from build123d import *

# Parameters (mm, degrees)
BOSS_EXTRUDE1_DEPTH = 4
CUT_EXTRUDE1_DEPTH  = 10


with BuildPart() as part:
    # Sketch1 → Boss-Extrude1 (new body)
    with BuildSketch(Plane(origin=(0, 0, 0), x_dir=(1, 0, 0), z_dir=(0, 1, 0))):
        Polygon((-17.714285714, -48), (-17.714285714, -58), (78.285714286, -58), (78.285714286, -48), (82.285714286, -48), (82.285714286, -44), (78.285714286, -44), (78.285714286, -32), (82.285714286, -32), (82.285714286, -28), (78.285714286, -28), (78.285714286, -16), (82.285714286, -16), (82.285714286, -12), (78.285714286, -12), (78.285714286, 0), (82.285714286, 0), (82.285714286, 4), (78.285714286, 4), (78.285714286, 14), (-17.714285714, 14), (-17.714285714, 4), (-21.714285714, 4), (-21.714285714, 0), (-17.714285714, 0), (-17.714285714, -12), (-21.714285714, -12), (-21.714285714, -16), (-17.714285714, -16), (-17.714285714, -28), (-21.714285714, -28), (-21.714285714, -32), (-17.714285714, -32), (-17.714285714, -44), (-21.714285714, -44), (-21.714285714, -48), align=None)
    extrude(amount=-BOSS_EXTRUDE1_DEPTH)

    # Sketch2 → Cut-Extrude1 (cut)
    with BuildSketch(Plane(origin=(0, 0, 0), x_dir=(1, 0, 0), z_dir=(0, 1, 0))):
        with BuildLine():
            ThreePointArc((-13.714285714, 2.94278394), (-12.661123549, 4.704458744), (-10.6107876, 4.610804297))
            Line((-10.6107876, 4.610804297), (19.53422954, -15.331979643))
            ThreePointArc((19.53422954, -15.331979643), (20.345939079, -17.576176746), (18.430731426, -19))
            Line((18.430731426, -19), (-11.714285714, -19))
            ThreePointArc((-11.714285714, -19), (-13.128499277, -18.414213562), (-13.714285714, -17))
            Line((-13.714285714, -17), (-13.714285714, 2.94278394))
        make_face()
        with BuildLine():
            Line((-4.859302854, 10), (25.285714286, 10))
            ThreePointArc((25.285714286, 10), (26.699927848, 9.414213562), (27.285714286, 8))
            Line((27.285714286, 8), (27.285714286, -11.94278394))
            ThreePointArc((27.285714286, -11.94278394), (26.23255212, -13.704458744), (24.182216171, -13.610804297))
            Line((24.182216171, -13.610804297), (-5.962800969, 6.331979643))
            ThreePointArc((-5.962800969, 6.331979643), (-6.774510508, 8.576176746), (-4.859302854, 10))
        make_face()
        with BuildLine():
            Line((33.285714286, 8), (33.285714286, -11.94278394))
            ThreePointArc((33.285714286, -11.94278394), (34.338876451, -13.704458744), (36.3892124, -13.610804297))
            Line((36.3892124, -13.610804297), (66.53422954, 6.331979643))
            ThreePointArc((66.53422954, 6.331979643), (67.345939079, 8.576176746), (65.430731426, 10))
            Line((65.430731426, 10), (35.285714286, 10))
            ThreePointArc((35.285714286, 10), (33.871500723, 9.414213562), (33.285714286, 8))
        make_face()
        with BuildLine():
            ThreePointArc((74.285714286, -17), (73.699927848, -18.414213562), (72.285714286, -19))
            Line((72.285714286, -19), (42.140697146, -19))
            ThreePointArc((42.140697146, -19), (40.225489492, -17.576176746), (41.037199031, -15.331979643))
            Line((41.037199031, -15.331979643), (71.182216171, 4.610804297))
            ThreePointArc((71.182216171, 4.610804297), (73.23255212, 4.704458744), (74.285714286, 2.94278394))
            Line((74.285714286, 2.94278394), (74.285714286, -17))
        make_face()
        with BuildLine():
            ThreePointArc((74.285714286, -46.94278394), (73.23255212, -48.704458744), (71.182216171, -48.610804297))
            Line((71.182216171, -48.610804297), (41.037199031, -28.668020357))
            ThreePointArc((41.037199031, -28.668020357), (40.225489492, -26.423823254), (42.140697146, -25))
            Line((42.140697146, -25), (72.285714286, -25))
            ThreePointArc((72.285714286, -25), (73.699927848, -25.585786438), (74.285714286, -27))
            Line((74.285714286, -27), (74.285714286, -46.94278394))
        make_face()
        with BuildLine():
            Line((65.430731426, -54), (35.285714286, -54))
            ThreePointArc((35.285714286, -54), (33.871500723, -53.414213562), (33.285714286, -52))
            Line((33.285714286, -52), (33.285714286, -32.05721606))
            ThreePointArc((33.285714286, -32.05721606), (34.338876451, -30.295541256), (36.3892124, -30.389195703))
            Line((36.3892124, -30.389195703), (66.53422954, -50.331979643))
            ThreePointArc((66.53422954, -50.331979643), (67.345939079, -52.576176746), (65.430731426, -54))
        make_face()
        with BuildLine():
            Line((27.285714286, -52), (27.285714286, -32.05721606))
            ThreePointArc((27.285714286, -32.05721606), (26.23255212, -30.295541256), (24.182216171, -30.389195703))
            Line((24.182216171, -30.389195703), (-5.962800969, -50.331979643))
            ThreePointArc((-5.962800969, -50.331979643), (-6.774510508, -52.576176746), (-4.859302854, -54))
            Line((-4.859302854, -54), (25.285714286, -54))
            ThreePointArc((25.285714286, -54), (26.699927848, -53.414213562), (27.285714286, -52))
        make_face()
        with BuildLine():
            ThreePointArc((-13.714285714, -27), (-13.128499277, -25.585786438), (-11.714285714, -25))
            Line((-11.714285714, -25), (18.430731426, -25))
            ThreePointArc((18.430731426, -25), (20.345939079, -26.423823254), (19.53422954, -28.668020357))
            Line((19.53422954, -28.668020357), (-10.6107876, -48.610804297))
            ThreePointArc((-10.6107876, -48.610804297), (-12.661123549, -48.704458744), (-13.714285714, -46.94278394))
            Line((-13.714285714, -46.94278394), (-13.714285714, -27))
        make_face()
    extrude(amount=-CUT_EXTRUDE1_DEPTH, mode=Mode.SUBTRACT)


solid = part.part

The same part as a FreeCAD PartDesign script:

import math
import FreeCAD as App
import Part
import Sketcher


def add_polygon(sketch, points):
    """Adds a closed chain of lines whose ends are joined by coincident constraints."""
    first, n = sketch.GeometryCount, len(points)
    for a, b in zip(points, points[1:] + points[:1]):
        sketch.addGeometry(Part.LineSegment(App.Vector(*a, 0), App.Vector(*b, 0)), False)
    for i in range(n):
        sketch.addConstraint(Sketcher.Constraint("Coincident", first + i, 2, first + (i + 1) % n, 1))

doc = App.newDocument("Part")
body = doc.addObject("PartDesign::Body", "Body")

sketch1 = body.newObject("Sketcher::SketchObject", "Sketch")
sketch1.AttachmentSupport = (doc.getObject("XZ_Plane"), [""])
sketch1.MapMode = "FlatFace"
add_polygon(sketch1, [(-17.7, 48), (-17.7, 58), (78.3, 58), (78.3, 48), (82.3, 48), (82.3, 44), (78.3, 44), (78.3, 32), (82.3, 32), (82.3, 28), (78.3, 28), (78.3, 16), (82.3, 16), (82.3, 12), (78.3, 12), (78.3, 0), (82.3, 0), (82.3, -4), (78.3, -4), (78.3, -14), (-17.7, -14), (-17.7, -4), (-21.7, -4), (-21.7, 0), (-17.7, 0), (-17.7, 12), (-21.7, 12), (-21.7, 16), (-17.7, 16), (-17.7, 28), (-21.7, 28), (-21.7, 32), (-17.7, 32), (-17.7, 44), (-21.7, 44), (-21.7, 48)])
sketch1.addConstraint([
    Sketcher.Constraint("Vertical", 0),
    Sketcher.Constraint("Horizontal", 1),
    Sketcher.Constraint("Vertical", 2),
    Sketcher.Constraint("Horizontal", 3),
    Sketcher.Constraint("Vertical", 4),
    Sketcher.Constraint("Horizontal", 5),
    Sketcher.Constraint("Vertical", 6),
    Sketcher.Constraint("Horizontal", 7),
    Sketcher.Constraint("Vertical", 8),
    Sketcher.Constraint("Horizontal", 9),
    Sketcher.Constraint("Vertical", 10),
    Sketcher.Constraint("Horizontal", 11),
    Sketcher.Constraint("Vertical", 12),
    Sketcher.Constraint("Horizontal", 13),
    Sketcher.Constraint("Vertical", 14),
    Sketcher.Constraint("Horizontal", 15),
    Sketcher.Constraint("Vertical", 16),
    Sketcher.Constraint("Horizontal", 17),
    Sketcher.Constraint("Vertical", 18),
    Sketcher.Constraint("Horizontal", 19),
    Sketcher.Constraint("Vertical", 20),
    Sketcher.Constraint("Horizontal", 21),
    Sketcher.Constraint("Vertical", 22),
    Sketcher.Constraint("Horizontal", 23),
    Sketcher.Constraint("Vertical", 24),
    Sketcher.Constraint("Horizontal", 25),
    Sketcher.Constraint("Vertical", 26),
    Sketcher.Constraint("Horizontal", 27),
    Sketcher.Constraint("Vertical", 28),
    Sketcher.Constraint("Horizontal", 29),
    Sketcher.Constraint("Vertical", 30),
    Sketcher.Constraint("Horizontal", 31),
    Sketcher.Constraint("Vertical", 32),
    Sketcher.Constraint("Horizontal", 33),
    Sketcher.Constraint("Vertical", 34),
    Sketcher.Constraint("Horizontal", 35),
    Sketcher.Constraint("PointOnObject", 14, 2, -1),
    Sketcher.Constraint("PointOnObject", 22, 2, -1),
    Sketcher.Constraint("Horizontal", 17, 2, 20, 2),
    Sketcher.Constraint("Horizontal", 13, 2, 24, 2),
    Sketcher.Constraint("Horizontal", 11, 2, 26, 2),
    Sketcher.Constraint("Horizontal", 9, 2, 28, 2),
    Sketcher.Constraint("Horizontal", 7, 2, 30, 2),
    Sketcher.Constraint("Horizontal", 5, 2, 32, 2),
    Sketcher.Constraint("Horizontal", 3, 2, 34, 2),
    Sketcher.Constraint("Vertical", 2, 2, 5, 2),
    Sketcher.Constraint("Vertical", 4, 2, 7, 2),
    Sketcher.Constraint("Vertical", 6, 2, 9, 2),
    Sketcher.Constraint("Vertical", 8, 2, 11, 2),
    Sketcher.Constraint("Vertical", 10, 2, 13, 2),
    Sketcher.Constraint("Vertical", 12, 2, 15, 2),
    Sketcher.Constraint("Vertical", 14, 2, 17, 2),
    Sketcher.Constraint("Vertical", 0, 2, 19, 2),
    Sketcher.Constraint("Vertical", 20, 2, 23, 2),
    Sketcher.Constraint("Vertical", 22, 2, 25, 2),
    Sketcher.Constraint("Vertical", 24, 2, 27, 2),
    Sketcher.Constraint("Vertical", 26, 2, 29, 2),
    Sketcher.Constraint("Vertical", 28, 2, 31, 2),
    Sketcher.Constraint("Vertical", 30, 2, 33, 2),
    Sketcher.Constraint("Equal", 17, 21),
    Sketcher.Constraint("Equal", 35, 4),
    Sketcher.Constraint("Equal", 4, 8),
    Sketcher.Constraint("Equal", 6, 10),
    Sketcher.Constraint("Equal", 8, 12),
    Sketcher.Constraint("Equal", 10, 14),
    Sketcher.Constraint("Equal", 12, 16),
    Sketcher.Constraint("Equal", 2, 18),
    Sketcher.Constraint("DistanceX", 1, 1, 1, 2, 96.0),
    Sketcher.Constraint("DistanceX", 3, 1, 3, 2, 4.0),
    Sketcher.Constraint("DistanceY", 0, 1, 0, 2, 10.0),
    Sketcher.Constraint("DistanceY", 6, 2, 6, 1, 12.0),
    Sketcher.Constraint("DistanceX", 0, 2, -1, 1, 17.714286),
])
pad1 = body.newObject("PartDesign::Pad", "Pad")
pad1.Profile = sketch1
pad1.Length = 4

sketch2 = body.newObject("Sketcher::SketchObject", "Sketch001")
sketch2.AttachmentSupport = (doc.getObject("XZ_Plane"), [""])
sketch2.MapMode = "FlatFace"
sketch2.addGeometry([
    Part.ArcOfCircle(Part.Circle(App.Vector(-11.7, -2.9, 0), App.Vector(0, 0, 1), 2), math.radians(180), math.radians(303)),
    Part.LineSegment(App.Vector(-13.7, -2.9, 0), App.Vector(-13.7, 17, 0)),
    Part.ArcOfCircle(Part.Circle(App.Vector(-11.7, 17, 0), App.Vector(0, 0, 1), 2), math.radians(90), math.radians(180)),
    Part.LineSegment(App.Vector(-11.7, 19, 0), App.Vector(18.4, 19, 0)),
    Part.ArcOfCircle(Part.Circle(App.Vector(18.4, 17, 0), App.Vector(0, 0, 1), 2), math.radians(-57), math.radians(90)),
    Part.LineSegment(App.Vector(19.5, 15.3, 0), App.Vector(-10.6, -4.6, 0)),
    Part.LineSegment(App.Vector(25.3, -10, 0), App.Vector(-4.9, -10, 0)),
    Part.ArcOfCircle(Part.Circle(App.Vector(-4.9, -8, 0), App.Vector(0, 0, 1), 2), math.radians(123), math.radians(270)),
    Part.LineSegment(App.Vector(-6, -6.3, 0), App.Vector(24.2, 13.6, 0)),
    Part.ArcOfCircle(Part.Circle(App.Vector(25.3, 11.9, 0), App.Vector(0, 0, 1), 2), math.radians(0), math.radians(123)),
    Part.LineSegment(App.Vector(27.3, 11.9, 0), App.Vector(27.3, -8, 0)),
    Part.ArcOfCircle(Part.Circle(App.Vector(25.3, -8, 0), App.Vector(0, 0, 1), 2), math.radians(-90), math.radians(0)),
    Part.LineSegment(App.Vector(33.3, -8, 0), App.Vector(33.3, 11.9, 0)),
    Part.ArcOfCircle(Part.Circle(App.Vector(35.3, 11.9, 0), App.Vector(0, 0, 1), 2), math.radians(57), math.radians(180)),
    Part.LineSegment(App.Vector(36.4, 13.6, 0), App.Vector(66.5, -6.3, 0)),
    Part.ArcOfCircle(Part.Circle(App.Vector(65.4, -8, 0), App.Vector(0, 0, 1), 2), math.radians(-90), math.radians(57)),
    Part.LineSegment(App.Vector(65.4, -10, 0), App.Vector(35.3, -10, 0)),
    Part.ArcOfCircle(Part.Circle(App.Vector(35.3, -8, 0), App.Vector(0, 0, 1), 2), math.radians(180), math.radians(270)),
    Part.ArcOfCircle(Part.Circle(App.Vector(72.3, 17, 0), App.Vector(0, 0, 1), 2), math.radians(0), math.radians(90)),
    Part.LineSegment(App.Vector(74.3, 17, 0), App.Vector(74.3, -2.9, 0)),
    Part.ArcOfCircle(Part.Circle(App.Vector(72.3, -2.9, 0), App.Vector(0, 0, 1), 2), math.radians(-123), math.radians(0)),
    Part.LineSegment(App.Vector(71.2, -4.6, 0), App.Vector(41, 15.3, 0)),
    Part.ArcOfCircle(Part.Circle(App.Vector(42.1, 17, 0), App.Vector(0, 0, 1), 2), math.radians(90), math.radians(237)),
    Part.LineSegment(App.Vector(42.1, 19, 0), App.Vector(72.3, 19, 0)),
    Part.ArcOfCircle(Part.Circle(App.Vector(72.3, 46.9, 0), App.Vector(0, 0, 1), 2), math.radians(0), math.radians(123)),
    Part.LineSegment(App.Vector(74.3, 46.9, 0), App.Vector(74.3, 27, 0)),
    Part.ArcOfCircle(Part.Circle(App.Vector(72.3, 27, 0), App.Vector(0, 0, 1), 2), math.radians(-90), math.radians(0)),
    Part.LineSegment(App.Vector(72.3, 25, 0), App.Vector(42.1, 25, 0)),
    Part.ArcOfCircle(Part.Circle(App.Vector(42.1, 27, 0), App.Vector(0, 0, 1), 2), math.radians(123), math.radians(270)),
    Part.LineSegment(App.Vector(41, 28.7, 0), App.Vector(71.2, 48.6, 0)),
    Part.LineSegment(App.Vector(35.3, 54, 0), App.Vector(65.4, 54, 0)),
    Part.ArcOfCircle(Part.Circle(App.Vector(65.4, 52, 0), App.Vector(0, 0, 1), 2), math.radians(-57), math.radians(90)),
    Part.LineSegment(App.Vector(66.5, 50.3, 0), App.Vector(36.4, 30.4, 0)),
    Part.ArcOfCircle(Part.Circle(App.Vector(35.3, 32.1, 0), App.Vector(0, 0, 1), 2), math.radians(180), math.radians(303)),
    Part.LineSegment(App.Vector(33.3, 32.1, 0), App.Vector(33.3, 52, 0)),
    Part.ArcOfCircle(Part.Circle(App.Vector(35.3, 52, 0), App.Vector(0, 0, 1), 2), math.radians(90), math.radians(180)),
    Part.LineSegment(App.Vector(27.3, 52, 0), App.Vector(27.3, 32.1, 0)),
    Part.ArcOfCircle(Part.Circle(App.Vector(25.3, 32.1, 0), App.Vector(0, 0, 1), 2), math.radians(-123), math.radians(0)),
    Part.LineSegment(App.Vector(24.2, 30.4, 0), App.Vector(-6, 50.3, 0)),
    Part.ArcOfCircle(Part.Circle(App.Vector(-4.9, 52, 0), App.Vector(0, 0, 1), 2), math.radians(90), math.radians(237)),
    Part.LineSegment(App.Vector(-4.9, 54, 0), App.Vector(25.3, 54, 0)),
    Part.ArcOfCircle(Part.Circle(App.Vector(25.3, 52, 0), App.Vector(0, 0, 1), 2), math.radians(0), math.radians(90)),
    Part.ArcOfCircle(Part.Circle(App.Vector(-11.7, 27, 0), App.Vector(0, 0, 1), 2), math.radians(180), math.radians(270)),
    Part.LineSegment(App.Vector(-13.7, 27, 0), App.Vector(-13.7, 46.9, 0)),
    Part.ArcOfCircle(Part.Circle(App.Vector(-11.7, 46.9, 0), App.Vector(0, 0, 1), 2), math.radians(57), math.radians(180)),
    Part.LineSegment(App.Vector(-10.6, 48.6, 0), App.Vector(19.5, 28.7, 0)),
    Part.ArcOfCircle(Part.Circle(App.Vector(18.4, 27, 0), App.Vector(0, 0, 1), 2), math.radians(-90), math.radians(57)),
    Part.LineSegment(App.Vector(18.4, 25, 0), App.Vector(-11.7, 25, 0)),
], False)
sketch2.addConstraint([
    Sketcher.Constraint("Tangent", 0, 1, 1, 1),
    Sketcher.Constraint("Tangent", 1, 2, 2, 2),
    Sketcher.Constraint("Tangent", 2, 1, 3, 1),
    Sketcher.Constraint("Tangent", 3, 2, 4, 2),
    Sketcher.Constraint("Tangent", 4, 1, 5, 1),
    Sketcher.Constraint("Tangent", 5, 2, 0, 2),
    Sketcher.Constraint("Tangent", 6, 2, 7, 2),
    Sketcher.Constraint("Tangent", 7, 1, 8, 1),
    Sketcher.Constraint("Tangent", 8, 2, 9, 2),
    Sketcher.Constraint("Tangent", 9, 1, 10, 1),
    Sketcher.Constraint("Tangent", 10, 2, 11, 2),
    Sketcher.Constraint("Tangent", 11, 1, 6, 1),
    Sketcher.Constraint("Tangent", 12, 2, 13, 2),
    Sketcher.Constraint("Tangent", 13, 1, 14, 1),
    Sketcher.Constraint("Tangent", 14, 2, 15, 2),
    Sketcher.Constraint("Tangent", 15, 1, 16, 1),
    Sketcher.Constraint("Tangent", 16, 2, 17, 2),
    Sketcher.Constraint("Tangent", 17, 1, 12, 1),
    Sketcher.Constraint("Tangent", 18, 1, 19, 1),
    Sketcher.Constraint("Tangent", 19, 2, 20, 2),
    Sketcher.Constraint("Tangent", 20, 1, 21, 1),
    Sketcher.Constraint("Tangent", 21, 2, 22, 2),
    Sketcher.Constraint("Tangent", 22, 1, 23, 1),
    Sketcher.Constraint("Tangent", 23, 2, 18, 2),
    Sketcher.Constraint("Tangent", 24, 1, 25, 1),
    Sketcher.Constraint("Tangent", 25, 2, 26, 2),
    Sketcher.Constraint("Tangent", 26, 1, 27, 1),
    Sketcher.Constraint("Tangent", 27, 2, 28, 2),
    Sketcher.Constraint("Tangent", 28, 1, 29, 1),
    Sketcher.Constraint("Tangent", 29, 2, 24, 2),
    Sketcher.Constraint("Tangent", 30, 2, 31, 2),
    Sketcher.Constraint("Tangent", 31, 1, 32, 1),
    Sketcher.Constraint("Tangent", 32, 2, 33, 2),
    Sketcher.Constraint("Tangent", 33, 1, 34, 1),
    Sketcher.Constraint("Tangent", 34, 2, 35, 2),
    Sketcher.Constraint("Tangent", 35, 1, 30, 1),
    Sketcher.Constraint("Tangent", 36, 2, 37, 2),
    Sketcher.Constraint("Tangent", 37, 1, 38, 1),
    Sketcher.Constraint("Tangent", 38, 2, 39, 2),
    Sketcher.Constraint("Tangent", 39, 1, 40, 1),
    Sketcher.Constraint("Tangent", 40, 2, 41, 2),
    Sketcher.Constraint("Tangent", 41, 1, 36, 1),
    Sketcher.Constraint("Tangent", 42, 1, 43, 1),
    Sketcher.Constraint("Tangent", 43, 2, 44, 2),
    Sketcher.Constraint("Tangent", 44, 1, 45, 1),
    Sketcher.Constraint("Tangent", 45, 2, 46, 2),
    Sketcher.Constraint("Tangent", 46, 1, 47, 1),
    Sketcher.Constraint("Tangent", 47, 2, 42, 2),
    Sketcher.Constraint("Vertical", 1),
    Sketcher.Constraint("Horizontal", 3),
    Sketcher.Constraint("Horizontal", 6),
    Sketcher.Constraint("Vertical", 10),
    Sketcher.Constraint("Vertical", 12),
    Sketcher.Constraint("Horizontal", 16),
    Sketcher.Constraint("Vertical", 19),
    Sketcher.Constraint("Horizontal", 23),
    Sketcher.Constraint("Vertical", 25),
    Sketcher.Constraint("Horizontal", 27),
    Sketcher.Constraint("Horizontal", 30),
    Sketcher.Constraint("Vertical", 34),
    Sketcher.Constraint("Vertical", 36),
    Sketcher.Constraint("Horizontal", 40),
    Sketcher.Constraint("Vertical", 43),
    Sketcher.Constraint("Horizontal", 47),
    Sketcher.Constraint("Equal", 0, 2),
    Sketcher.Constraint("Equal", 2, 4),
    Sketcher.Constraint("Equal", 4, 7),
    Sketcher.Constraint("Equal", 7, 9),
    Sketcher.Constraint("Equal", 9, 11),
    Sketcher.Constraint("Equal", 11, 13),
    Sketcher.Constraint("Equal", 13, 15),
    Sketcher.Constraint("Equal", 15, 17),
    Sketcher.Constraint("Equal", 17, 18),
    Sketcher.Constraint("Equal", 18, 20),
    Sketcher.Constraint("Equal", 20, 22),
    Sketcher.Constraint("Equal", 22, 24),
    Sketcher.Constraint("Equal", 24, 26),
    Sketcher.Constraint("Equal", 26, 28),
    Sketcher.Constraint("Equal", 28, 31),
    Sketcher.Constraint("Equal", 31, 33),
    Sketcher.Constraint("Equal", 33, 35),
    Sketcher.Constraint("Equal", 35, 37),
    Sketcher.Constraint("Equal", 37, 39),
    Sketcher.Constraint("Equal", 39, 41),
    Sketcher.Constraint("Equal", 41, 42),
    Sketcher.Constraint("Equal", 42, 44),
    Sketcher.Constraint("Equal", 44, 46),
    Sketcher.Constraint("Parallel", 5, 8),
    Sketcher.Constraint("Parallel", 14, 21),
    Sketcher.Constraint("Parallel", 8, 29),
    Sketcher.Constraint("Parallel", 29, 32),
    Sketcher.Constraint("Parallel", 21, 38),
    Sketcher.Constraint("Parallel", 38, 45),
    Sketcher.Constraint("Horizontal", 9, 3, 13, 3),
    Sketcher.Constraint("Horizontal", 11, 3, 15, 3),
    Sketcher.Constraint("Horizontal", 4, 3, 18, 3),
    Sketcher.Constraint("Horizontal", 0, 3, 20, 3),
    Sketcher.Constraint("Horizontal", 33, 3, 37, 3),
    Sketcher.Constraint("Horizontal", 35, 3, 39, 3),
    Sketcher.Constraint("Horizontal", 28, 3, 42, 3),
    Sketcher.Constraint("Horizontal", 24, 3, 44, 3),
    Sketcher.Constraint("Horizontal", 8, 2, 13, 1),
    Sketcher.Constraint("Vertical", 20, 3, 24, 3),
    Sketcher.Constraint("Vertical", 22, 3, 28, 3),
    Sketcher.Constraint("Vertical", 15, 3, 31, 3),
    Sketcher.Constraint("Vertical", 17, 3, 33, 3),
    Sketcher.Constraint("Vertical", 11, 3, 37, 3),
    Sketcher.Constraint("Vertical", 2, 3, 42, 3),
    Sketcher.Constraint("Equal", 3, 6),
    Sketcher.Constraint("Radius", 0, 2.0),
    Sketcher.Constraint("DistanceY", -1, 1, 2, 3, 17.0),
    Sketcher.Constraint("DistanceY", 7, 3, -1, 1, 8.0),
    Sketcher.Constraint("DistanceY", -1, 1, 26, 3, 27.0),
    Sketcher.Constraint("DistanceY", -1, 1, 31, 3, 52.0),
    Sketcher.Constraint("DistanceX", 7, 1, -1, 1, 5.962801),
    Sketcher.Constraint("DistanceX", -1, 1, 21, 2, 41.037199),
    Sketcher.Constraint("DistanceX", 3, 1, 3, 2, 30.145017),
    Sketcher.Constraint("DistanceY", 1, 1, 1, 2, 19.942784),
    Sketcher.Constraint("DistanceX", -1, 1, 4, 3, 18.430731),
    Sketcher.Constraint("DistanceX", -1, 1, 15, 3, 65.430731),
])
pocket1 = body.newObject("PartDesign::Pocket", "Pocket")
pocket1.Profile = sketch2
pocket1.Length = 10
pocket1.Reversed = True

doc.recompute()
